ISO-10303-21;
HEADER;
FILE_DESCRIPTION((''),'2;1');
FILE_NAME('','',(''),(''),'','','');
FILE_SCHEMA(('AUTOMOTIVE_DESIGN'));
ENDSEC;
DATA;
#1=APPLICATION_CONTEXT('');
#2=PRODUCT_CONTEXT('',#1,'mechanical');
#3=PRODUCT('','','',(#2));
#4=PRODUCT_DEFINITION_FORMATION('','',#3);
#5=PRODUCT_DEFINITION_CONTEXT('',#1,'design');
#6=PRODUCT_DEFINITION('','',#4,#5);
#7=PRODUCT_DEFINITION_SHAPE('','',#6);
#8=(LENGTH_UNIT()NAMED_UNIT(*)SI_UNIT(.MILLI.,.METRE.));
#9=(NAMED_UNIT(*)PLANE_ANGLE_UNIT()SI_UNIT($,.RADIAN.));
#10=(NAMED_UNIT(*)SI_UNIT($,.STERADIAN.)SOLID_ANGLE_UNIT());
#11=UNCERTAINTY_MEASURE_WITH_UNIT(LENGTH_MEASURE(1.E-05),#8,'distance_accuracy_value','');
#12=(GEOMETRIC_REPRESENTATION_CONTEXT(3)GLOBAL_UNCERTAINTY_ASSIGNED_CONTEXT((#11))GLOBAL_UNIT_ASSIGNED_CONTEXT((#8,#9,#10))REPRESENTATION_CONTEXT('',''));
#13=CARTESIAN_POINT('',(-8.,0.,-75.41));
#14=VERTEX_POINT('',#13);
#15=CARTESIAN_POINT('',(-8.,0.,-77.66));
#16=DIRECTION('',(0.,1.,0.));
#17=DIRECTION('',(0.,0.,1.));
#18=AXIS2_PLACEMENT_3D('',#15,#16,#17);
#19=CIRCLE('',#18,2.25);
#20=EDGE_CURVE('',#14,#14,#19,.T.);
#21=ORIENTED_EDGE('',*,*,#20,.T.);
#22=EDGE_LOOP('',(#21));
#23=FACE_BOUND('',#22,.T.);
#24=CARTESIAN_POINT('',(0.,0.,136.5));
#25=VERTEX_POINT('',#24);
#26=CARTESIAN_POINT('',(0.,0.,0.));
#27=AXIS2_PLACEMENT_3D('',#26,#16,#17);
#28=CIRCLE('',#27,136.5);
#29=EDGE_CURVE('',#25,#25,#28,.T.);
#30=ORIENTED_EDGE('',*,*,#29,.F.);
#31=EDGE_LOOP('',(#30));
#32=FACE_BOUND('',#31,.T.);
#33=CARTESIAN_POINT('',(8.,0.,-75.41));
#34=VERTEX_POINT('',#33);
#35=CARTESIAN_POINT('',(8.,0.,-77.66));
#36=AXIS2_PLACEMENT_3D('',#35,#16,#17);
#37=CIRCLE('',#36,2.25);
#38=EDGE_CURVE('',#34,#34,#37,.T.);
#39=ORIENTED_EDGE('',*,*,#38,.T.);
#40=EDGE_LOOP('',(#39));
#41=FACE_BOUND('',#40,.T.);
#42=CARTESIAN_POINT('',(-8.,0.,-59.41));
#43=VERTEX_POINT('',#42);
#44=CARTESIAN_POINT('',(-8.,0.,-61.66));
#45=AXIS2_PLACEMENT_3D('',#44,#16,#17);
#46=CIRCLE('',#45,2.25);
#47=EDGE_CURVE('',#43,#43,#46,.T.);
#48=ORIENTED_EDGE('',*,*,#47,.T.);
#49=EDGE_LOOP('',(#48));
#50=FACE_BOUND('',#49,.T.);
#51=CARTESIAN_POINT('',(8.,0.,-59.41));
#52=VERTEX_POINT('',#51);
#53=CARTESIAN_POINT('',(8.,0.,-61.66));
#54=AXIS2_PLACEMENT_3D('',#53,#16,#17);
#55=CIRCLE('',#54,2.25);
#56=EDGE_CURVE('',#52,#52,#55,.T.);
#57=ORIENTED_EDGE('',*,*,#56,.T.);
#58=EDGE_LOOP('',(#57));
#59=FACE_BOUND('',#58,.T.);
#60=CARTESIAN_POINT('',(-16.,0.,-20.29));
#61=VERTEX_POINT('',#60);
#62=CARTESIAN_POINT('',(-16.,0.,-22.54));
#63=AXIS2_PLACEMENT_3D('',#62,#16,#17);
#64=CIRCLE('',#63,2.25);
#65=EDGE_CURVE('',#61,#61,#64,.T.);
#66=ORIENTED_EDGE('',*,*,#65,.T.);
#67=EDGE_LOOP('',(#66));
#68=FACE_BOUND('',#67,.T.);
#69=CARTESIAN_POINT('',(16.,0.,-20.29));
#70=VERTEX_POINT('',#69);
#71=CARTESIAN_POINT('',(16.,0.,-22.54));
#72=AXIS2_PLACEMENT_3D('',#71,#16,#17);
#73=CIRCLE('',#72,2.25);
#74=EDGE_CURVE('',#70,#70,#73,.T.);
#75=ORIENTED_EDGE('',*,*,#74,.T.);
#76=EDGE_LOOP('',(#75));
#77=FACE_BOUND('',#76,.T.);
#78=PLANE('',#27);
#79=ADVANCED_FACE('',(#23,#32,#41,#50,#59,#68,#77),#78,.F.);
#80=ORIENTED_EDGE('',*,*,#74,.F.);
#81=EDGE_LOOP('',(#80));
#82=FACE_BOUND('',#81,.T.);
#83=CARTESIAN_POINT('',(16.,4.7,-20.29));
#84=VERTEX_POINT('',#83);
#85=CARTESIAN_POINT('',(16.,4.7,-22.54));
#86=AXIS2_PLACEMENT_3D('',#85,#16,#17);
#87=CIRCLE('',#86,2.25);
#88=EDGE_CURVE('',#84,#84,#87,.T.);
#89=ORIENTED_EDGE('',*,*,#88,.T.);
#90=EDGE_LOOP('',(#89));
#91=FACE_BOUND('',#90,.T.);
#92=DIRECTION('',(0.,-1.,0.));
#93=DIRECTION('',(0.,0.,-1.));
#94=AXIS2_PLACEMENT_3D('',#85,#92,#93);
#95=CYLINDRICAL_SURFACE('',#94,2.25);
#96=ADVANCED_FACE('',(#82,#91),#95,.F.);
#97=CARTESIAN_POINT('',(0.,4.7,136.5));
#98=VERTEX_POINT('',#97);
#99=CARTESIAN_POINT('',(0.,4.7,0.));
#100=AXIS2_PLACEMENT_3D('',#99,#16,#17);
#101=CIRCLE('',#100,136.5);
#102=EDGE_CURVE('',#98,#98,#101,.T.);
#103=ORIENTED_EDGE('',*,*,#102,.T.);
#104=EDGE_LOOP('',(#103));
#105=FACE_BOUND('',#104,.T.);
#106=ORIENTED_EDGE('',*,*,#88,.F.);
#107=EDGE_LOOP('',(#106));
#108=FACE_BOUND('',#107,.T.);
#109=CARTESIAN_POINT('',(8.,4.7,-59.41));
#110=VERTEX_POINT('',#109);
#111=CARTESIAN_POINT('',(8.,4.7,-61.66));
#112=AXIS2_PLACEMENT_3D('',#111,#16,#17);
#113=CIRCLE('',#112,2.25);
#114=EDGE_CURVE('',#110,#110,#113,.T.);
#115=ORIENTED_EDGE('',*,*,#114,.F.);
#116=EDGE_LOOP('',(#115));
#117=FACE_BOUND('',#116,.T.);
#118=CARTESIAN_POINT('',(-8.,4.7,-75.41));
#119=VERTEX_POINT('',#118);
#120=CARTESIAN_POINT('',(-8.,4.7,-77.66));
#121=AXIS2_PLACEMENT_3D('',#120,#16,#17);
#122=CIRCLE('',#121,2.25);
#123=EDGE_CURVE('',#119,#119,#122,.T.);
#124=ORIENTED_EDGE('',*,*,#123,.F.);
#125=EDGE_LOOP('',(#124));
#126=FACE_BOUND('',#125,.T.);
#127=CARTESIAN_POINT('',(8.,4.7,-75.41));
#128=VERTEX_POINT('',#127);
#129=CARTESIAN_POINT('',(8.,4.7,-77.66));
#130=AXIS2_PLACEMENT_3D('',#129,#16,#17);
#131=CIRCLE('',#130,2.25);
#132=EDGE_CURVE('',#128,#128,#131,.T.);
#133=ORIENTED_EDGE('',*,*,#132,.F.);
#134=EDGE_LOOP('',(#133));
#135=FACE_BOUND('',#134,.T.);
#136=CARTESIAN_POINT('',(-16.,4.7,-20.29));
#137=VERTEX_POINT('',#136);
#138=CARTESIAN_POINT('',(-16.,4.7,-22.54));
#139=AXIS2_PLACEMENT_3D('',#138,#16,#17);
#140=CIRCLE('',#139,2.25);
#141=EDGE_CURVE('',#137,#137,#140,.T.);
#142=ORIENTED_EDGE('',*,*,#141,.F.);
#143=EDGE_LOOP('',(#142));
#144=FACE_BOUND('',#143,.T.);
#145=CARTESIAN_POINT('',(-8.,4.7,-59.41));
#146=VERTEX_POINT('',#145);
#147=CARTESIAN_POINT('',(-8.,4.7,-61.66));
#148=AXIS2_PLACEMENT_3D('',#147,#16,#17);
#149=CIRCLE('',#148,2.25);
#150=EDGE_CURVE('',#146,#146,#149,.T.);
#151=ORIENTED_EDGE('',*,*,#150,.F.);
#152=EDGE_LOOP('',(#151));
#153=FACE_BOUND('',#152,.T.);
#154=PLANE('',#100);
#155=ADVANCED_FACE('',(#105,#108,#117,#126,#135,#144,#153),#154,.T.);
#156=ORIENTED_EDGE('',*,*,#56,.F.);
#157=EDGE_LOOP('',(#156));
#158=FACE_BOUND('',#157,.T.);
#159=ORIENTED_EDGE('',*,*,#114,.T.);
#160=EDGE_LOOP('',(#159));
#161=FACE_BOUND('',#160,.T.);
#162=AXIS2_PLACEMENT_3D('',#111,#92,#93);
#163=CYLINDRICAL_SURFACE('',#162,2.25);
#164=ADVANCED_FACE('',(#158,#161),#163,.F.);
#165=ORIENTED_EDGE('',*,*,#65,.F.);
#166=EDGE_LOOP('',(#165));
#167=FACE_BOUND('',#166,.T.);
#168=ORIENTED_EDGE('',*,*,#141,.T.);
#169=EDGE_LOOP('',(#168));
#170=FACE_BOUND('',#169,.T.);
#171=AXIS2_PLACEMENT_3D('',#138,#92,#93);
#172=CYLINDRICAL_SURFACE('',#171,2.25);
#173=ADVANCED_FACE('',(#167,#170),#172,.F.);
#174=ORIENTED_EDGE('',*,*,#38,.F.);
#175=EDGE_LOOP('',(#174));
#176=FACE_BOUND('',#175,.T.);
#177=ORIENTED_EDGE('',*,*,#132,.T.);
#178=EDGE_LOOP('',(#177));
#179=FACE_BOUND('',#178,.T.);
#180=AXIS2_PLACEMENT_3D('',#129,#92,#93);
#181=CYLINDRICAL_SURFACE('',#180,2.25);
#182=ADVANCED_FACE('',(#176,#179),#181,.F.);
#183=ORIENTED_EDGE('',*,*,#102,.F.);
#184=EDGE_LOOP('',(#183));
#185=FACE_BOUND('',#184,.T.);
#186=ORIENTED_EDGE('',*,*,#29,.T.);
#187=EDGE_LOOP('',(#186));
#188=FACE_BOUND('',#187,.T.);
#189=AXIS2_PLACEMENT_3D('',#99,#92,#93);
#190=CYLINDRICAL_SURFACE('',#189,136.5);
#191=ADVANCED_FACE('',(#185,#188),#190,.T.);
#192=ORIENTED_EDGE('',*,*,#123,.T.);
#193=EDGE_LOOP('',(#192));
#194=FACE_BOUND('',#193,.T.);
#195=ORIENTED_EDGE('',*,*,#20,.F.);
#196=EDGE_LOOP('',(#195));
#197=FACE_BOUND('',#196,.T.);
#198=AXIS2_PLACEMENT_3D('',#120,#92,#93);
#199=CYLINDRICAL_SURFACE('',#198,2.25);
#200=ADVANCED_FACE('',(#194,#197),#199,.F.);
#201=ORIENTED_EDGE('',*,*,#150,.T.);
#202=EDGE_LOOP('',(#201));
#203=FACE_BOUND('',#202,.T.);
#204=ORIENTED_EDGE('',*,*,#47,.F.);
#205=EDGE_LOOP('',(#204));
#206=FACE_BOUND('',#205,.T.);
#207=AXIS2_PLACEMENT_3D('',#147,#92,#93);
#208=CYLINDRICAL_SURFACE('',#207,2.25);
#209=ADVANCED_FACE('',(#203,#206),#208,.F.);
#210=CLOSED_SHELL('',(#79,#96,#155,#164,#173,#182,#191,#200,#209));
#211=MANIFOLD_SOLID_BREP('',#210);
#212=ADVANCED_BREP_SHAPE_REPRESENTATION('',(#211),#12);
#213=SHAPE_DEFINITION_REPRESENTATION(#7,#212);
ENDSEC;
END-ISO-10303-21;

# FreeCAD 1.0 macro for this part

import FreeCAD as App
import Part
import Sketcher

V = App.Vector

doc = App.newDocument("Part")
params = doc.addObject("Spreadsheet::Sheet", "Params")
for row, (alias, value) in enumerate([
    ("sketch1_diameter", "273 mm"),
    ("sketch1_diameter2", "4.5 mm"),
    ("pad1_length", "4.7 mm"),
], start=1):
    params.set(f"A{row}", alias)
    params.set(f"B{row}", "=" + value)
    params.setAlias(f"B{row}", alias)

body = doc.addObject("PartDesign::Body", "Body")

sketch1 = body.newObject("Sketcher::SketchObject", "Sketch")
sketch1.AttachmentSupport = (doc.getObject("XZ_Plane"), [""])
sketch1.MapMode = "FlatFace"
sketch1.addGeometry([
    Part.Circle(V(0, 0, 0), V(0, 0, 1), 136.5),
    Part.Circle(V(-16, -22.5, 0), V(0, 0, 1), 2.2),
    Part.Circle(V(16, -22.5, 0), V(0, 0, 1), 2.2),
    Part.Circle(V(-8, -61.7, 0), V(0, 0, 1), 2.2),
    Part.Circle(V(-8, -77.7, 0), V(0, 0, 1), 2.2),
    Part.Circle(V(8, -61.7, 0), V(0, 0, 1), 2.2),
    Part.Circle(V(8, -77.7, 0), V(0, 0, 1), 2.2),
], False)
sketch1.addConstraint([
    Sketcher.Constraint("Coincident", 0, 3, -1, 1),
    Sketcher.Constraint("Equal", 1, 2),
    Sketcher.Constraint("Equal", 2, 3),
    Sketcher.Constraint("Equal", 3, 4),
    Sketcher.Constraint("Equal", 4, 5),
    Sketcher.Constraint("Equal", 5, 6),
    Sketcher.Constraint("Symmetric", 1, 3, 2, 3, -2),
    Sketcher.Constraint("Symmetric", 3, 3, 5, 3, -2),
    Sketcher.Constraint("Symmetric", 4, 3, 6, 3, -2),
    Sketcher.Constraint("Vertical", 3, 3, 4, 3),
    Sketcher.Constraint("Diameter", 0, 273.0),
    Sketcher.Constraint("Diameter", 1, 4.5),
    Sketcher.Constraint("DistanceX", 1, 3, -1, 1, 16.0),
    Sketcher.Constraint("DistanceX", 3, 3, -1, 1, 8.0),
    Sketcher.Constraint("DistanceY", 4, 3, 3, 3, 16.0),
    Sketcher.Constraint("DistanceY", 1, 3, -1, 1, 22.54),
    Sketcher.Constraint("DistanceY", 3, 3, -1, 1, 61.66),
])
sketch1.setExpression("Constraints[10]", "Params.sketch1_diameter")
sketch1.setExpression("Constraints[11]", "Params.sketch1_diameter2")
pad1 = body.newObject("PartDesign::Pad", "Pad")
pad1.Profile = sketch1
pad1.setExpression("Length", "Params.pad1_length")
pad1.Reversed = True

doc.recompute()
